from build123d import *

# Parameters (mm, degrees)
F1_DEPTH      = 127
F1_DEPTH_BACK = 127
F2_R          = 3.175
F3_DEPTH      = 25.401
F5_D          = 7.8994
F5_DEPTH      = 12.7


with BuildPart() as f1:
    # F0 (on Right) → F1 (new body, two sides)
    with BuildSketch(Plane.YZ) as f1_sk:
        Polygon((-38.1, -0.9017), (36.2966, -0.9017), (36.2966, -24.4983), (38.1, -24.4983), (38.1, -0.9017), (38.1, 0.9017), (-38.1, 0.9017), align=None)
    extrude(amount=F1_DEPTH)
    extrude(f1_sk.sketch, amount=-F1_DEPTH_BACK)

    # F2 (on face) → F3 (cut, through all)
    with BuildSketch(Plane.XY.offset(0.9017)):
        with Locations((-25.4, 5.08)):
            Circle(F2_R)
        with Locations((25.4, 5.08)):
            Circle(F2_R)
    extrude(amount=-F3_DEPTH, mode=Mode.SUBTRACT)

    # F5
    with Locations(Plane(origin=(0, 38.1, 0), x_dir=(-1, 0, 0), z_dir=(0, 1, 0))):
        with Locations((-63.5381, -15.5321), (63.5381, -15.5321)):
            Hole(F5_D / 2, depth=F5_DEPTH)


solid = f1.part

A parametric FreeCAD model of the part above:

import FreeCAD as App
import Part
import Sketcher
Q = App.Units.Quantity


def add_polygon(sketch, points):
    """Adds a closed chain of lines whose ends are joined by coincident constraints."""
    first, n = sketch.GeometryCount, len(points)
    for a, b in zip(points, points[1:] + points[:1]):
        sketch.addGeometry(Part.LineSegment(App.Vector(*a, 0), App.Vector(*b, 0)), False)
    for i in range(n):
        sketch.addConstraint(Sketcher.Constraint("Coincident", first + i, 2, first + (i + 1) % n, 1))

doc = App.newDocument("Part")
params = doc.addObject("Spreadsheet::Sheet", "Params")
for row, (alias, value) in enumerate([
    ("sketch1_width", "3 in"),
    ("sketch1_height", "1 in"),
    ("sketch1_width2", "2.929 in"),
    ("pad1_length", "5 in"),
    ("pad1_length2", "5 in"),
    ("sketch2_diameter", "0.25 in"),
    ("sketch3_diameter", "0.311 in"),
    ("hole_diameter", "0.311 in"),
    ("hole_depth", "0.5 in"),
], start=1):
    params.set(f"A{row}", alias)
    params.set(f"B{row}", "=" + value)
    params.setAlias(f"B{row}", alias)

body = doc.addObject("PartDesign::Body", "Body")

# Sketch on YZ plane
sketch1 = body.newObject("Sketcher::SketchObject", "Sketch")
sketch1.AttachmentSupport = (doc.getObject("YZ_Plane"), [""])
sketch1.MapMode = "FlatFace"
add_polygon(sketch1, [(-38.1, -0.9), (36.3, -0.9), (36.3, -24.5), (38.1, -24.5), (38.1, 0.9), (-38.1, 0.9)])  # lines 0-5
sketch1.addConstraint(Sketcher.Constraint("Horizontal", 0))
sketch1.addConstraint(Sketcher.Constraint("Vertical", 1))
sketch1.addConstraint(Sketcher.Constraint("Horizontal", 2))
sketch1.addConstraint(Sketcher.Constraint("Vertical", 3))
sketch1.addConstraint(Sketcher.Constraint("Horizontal", 4))
sketch1.addConstraint(Sketcher.Constraint("Vertical", 5))
sketch1.addConstraint(Sketcher.Constraint("Symmetric", 3, 2, 5, 2, -1, 1))
sketch1.addConstraint(Sketcher.Constraint("Equal", 2, 5))
sketch1.addConstraint(Sketcher.Constraint("DistanceX", 4, 2, 4, 1, Q("3 in")))
sketch1.addConstraint(Sketcher.Constraint("DistanceY", 3, 1, 3, 2, Q("1 in")))
sketch1.addConstraint(Sketcher.Constraint("DistanceX", 0, 1, 0, 2, Q("2.929 in")))
sketch1.setExpression("Constraints[14]", "Params.sketch1_width")
sketch1.setExpression("Constraints[15]", "Params.sketch1_height")
sketch1.setExpression("Constraints[16]", "Params.sketch1_width2")
pad1 = body.newObject("PartDesign::Pad", "Pad")
pad1.Profile = sketch1
pad1.Type = "TwoLengths"
pad1.setExpression("Length", "Params.pad1_length")
pad1.setExpression("Length2", "Params.pad1_length2")

# Sketch on XY plane
sketch2 = body.newObject("Sketcher::SketchObject", "Sketch001")
sketch2.AttachmentSupport = (doc.getObject("XY_Plane"), [""])
sketch2.MapMode = "FlatFace"
sketch2.AttachmentOffset = App.Placement(App.Vector(0, 0, 0.0355 * 25.4), App.Rotation())
sketch2.addGeometry(Part.Circle(App.Vector(-25.4, 5.1, 0), App.Vector(0, 0, 1), 3.2), False)
sketch2.addGeometry(Part.Circle(App.Vector(25.4, 5.1, 0), App.Vector(0, 0, 1), 3.2), False)
sketch2.addConstraint(Sketcher.Constraint("Equal", 0, 1))
sketch2.addConstraint(Sketcher.Constraint("Symmetric", 0, 3, 1, 3, -2))
sketch2.addConstraint(Sketcher.Constraint("Diameter", 0, Q("0.25 in")))
sketch2.addConstraint(Sketcher.Constraint("DistanceX", 0, 3, -1, 1, Q("1 in")))
sketch2.addConstraint(Sketcher.Constraint("DistanceY", -1, 1, 0, 3, Q("0.2 in")))
sketch2.setExpression("Constraints[2]", "Params.sketch2_diameter")
pocket1 = body.newObject("PartDesign::Pocket", "Pocket")
pocket1.Profile = sketch2
pocket1.Type = "ThroughAll"

# Sketch on XZ plane
sketch3 = body.newObject("Sketcher::SketchObject", "Sketch002")
sketch3.AttachmentSupport = (doc.getObject("XZ_Plane"), [""])
sketch3.MapMode = "FlatFace"
sketch3.AttachmentOffset = App.Placement(App.Vector(0, 0, -1.5 * 25.4), App.Rotation())
sketch3.addGeometry(Part.Circle(App.Vector(63.5, -15.5, 0), App.Vector(0, 0, 1), 3.9), False)
sketch3.addGeometry(Part.Circle(App.Vector(-63.5, -15.5, 0), App.Vector(0, 0, 1), 3.9), False)
sketch3.addConstraint(Sketcher.Constraint("Equal", 0, 1))
sketch3.addConstraint(Sketcher.Constraint("Symmetric", 0, 3, 1, 3, -2))
sketch3.addConstraint(Sketcher.Constraint("Diameter", 0, Q("0.311 in")))
sketch3.addConstraint(Sketcher.Constraint("DistanceX", 1, 3, 0, 3, Q("5.003 in")))
sketch3.addConstraint(Sketcher.Constraint("DistanceY", 0, 3, -1, 1, Q("0.6115 in")))
sketch3.setExpression("Constraints[2]", "Params.sketch3_diameter")
doc.recompute()
hole = body.newObject("PartDesign::Hole", "Hole")
hole.Profile = sketch3
hole.ThreadType = "None"
hole.setExpression("Diameter", "Params.hole_diameter")
hole.DepthType = "Dimension"
hole.setExpression("Depth", "Params.hole_depth")
hole.DrillPoint = "Flat"
hole.Reversed = True

doc.recompute()
